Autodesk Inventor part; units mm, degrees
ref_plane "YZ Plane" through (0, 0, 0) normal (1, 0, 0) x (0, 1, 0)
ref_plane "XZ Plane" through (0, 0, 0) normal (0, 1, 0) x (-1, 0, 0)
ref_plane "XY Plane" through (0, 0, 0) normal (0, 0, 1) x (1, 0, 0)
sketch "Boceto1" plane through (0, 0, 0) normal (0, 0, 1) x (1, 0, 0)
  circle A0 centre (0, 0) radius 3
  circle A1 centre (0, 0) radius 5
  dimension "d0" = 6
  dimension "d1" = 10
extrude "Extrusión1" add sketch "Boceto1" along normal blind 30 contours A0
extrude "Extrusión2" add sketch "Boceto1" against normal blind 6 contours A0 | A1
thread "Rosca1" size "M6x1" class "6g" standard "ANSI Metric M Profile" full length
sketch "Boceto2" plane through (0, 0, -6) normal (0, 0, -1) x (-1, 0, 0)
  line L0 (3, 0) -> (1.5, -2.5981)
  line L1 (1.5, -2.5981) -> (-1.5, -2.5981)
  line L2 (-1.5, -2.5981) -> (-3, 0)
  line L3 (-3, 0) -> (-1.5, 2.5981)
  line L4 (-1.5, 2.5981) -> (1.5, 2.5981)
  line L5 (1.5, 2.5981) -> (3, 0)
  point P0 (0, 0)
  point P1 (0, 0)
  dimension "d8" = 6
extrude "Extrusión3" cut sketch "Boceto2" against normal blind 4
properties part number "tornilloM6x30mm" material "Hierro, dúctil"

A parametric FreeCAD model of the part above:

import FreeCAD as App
import Part
import Sketcher

V = App.Vector
Q = App.Units.Quantity


def add_polygon(sketch, points):
    """Adds a closed chain of lines whose ends are joined by coincident constraints."""
    first, n = sketch.GeometryCount, len(points)
    for a, b in zip(points, points[1:] + points[:1]):
        sketch.addGeometry(Part.LineSegment(App.Vector(*a, 0), App.Vector(*b, 0)), False)
    for i in range(n):
        sketch.addConstraint(Sketcher.Constraint("Coincident", first + i, 2, first + (i + 1) % n, 1))

doc = App.newDocument("Part")
body = doc.addObject("PartDesign::Body", "Body")

# Sketch on XY plane
sketch1 = body.newObject("Sketcher::SketchObject", "Sketch")
sketch1.AttachmentSupport = (doc.getObject("XY_Plane"), [""])
sketch1.MapMode = "FlatFace"
sketch1.addGeometry(Part.Circle(V(0, 0, 0), V(0, 0, 1), 3), False)
sketch1.addConstraint([
    Sketcher.Constraint("Coincident", 0, 3, -1, 1),
    Sketcher.Constraint("Diameter", 0, Q("6 mm")),
])
pad1 = body.newObject("PartDesign::Pad", "Pad")
pad1.Profile = sketch1
pad1.Length = 30

# Sketch on XY plane
sketch2 = body.newObject("Sketcher::SketchObject", "Sketch001")
sketch2.AttachmentSupport = (doc.getObject("XY_Plane"), [""])
sketch2.MapMode = "FlatFace"
sketch2.addGeometry(Part.Circle(V(0, 0, 0), V(0, 0, 1), 5), False)
sketch2.addConstraint([
    Sketcher.Constraint("Coincident", 0, 3, -1, 1),
    Sketcher.Constraint("Diameter", 0, Q("10 mm")),
])
pad2 = body.newObject("PartDesign::Pad", "Pad001")
pad2.Profile = sketch2
pad2.Length = 6
pad2.Reversed = True

# Sketch on XY plane
sketch3 = body.newObject("Sketcher::SketchObject", "Sketch002")
sketch3.AttachmentSupport = (doc.getObject("XY_Plane"), [""])
sketch3.MapMode = "FlatFace"
sketch3.AttachmentOffset = App.Placement(V(0, 0, -6), App.Rotation())
add_polygon(sketch3, [(-1.5, -2.6), (-3, 0), (-1.5, 2.6), (1.5, 2.6), (3, 0), (1.5, -2.6)])  # lines 0-5
sketch3.addConstraint([
    Sketcher.Constraint("Horizontal", 2),
    Sketcher.Constraint("Horizontal", 5),
    Sketcher.Constraint("Symmetric", 0, 2, 3, 2, -1, 1),
    Sketcher.Constraint("Symmetric", 1, 2, 4, 2, -1, 1),
    Sketcher.Constraint("PointOnObject", 0, 2, -1),
    Sketcher.Constraint("Parallel", 0, 3),
    Sketcher.Constraint("Vertical", 2, 2, 4, 2),
    Sketcher.Constraint("DistanceX", 0, 2, 3, 2, Q("6 mm")),
    Sketcher.Constraint("DistanceX", 2, 1, 2, 2, Q("3 mm")),
    Sketcher.Constraint("Angle", 0, Q("119.9998 deg")),
])
pocket1 = body.newObject("PartDesign::Pocket", "Pocket")
pocket1.Profile = sketch3
pocket1.Length = 4
pocket1.Reversed = True

doc.recompute()
